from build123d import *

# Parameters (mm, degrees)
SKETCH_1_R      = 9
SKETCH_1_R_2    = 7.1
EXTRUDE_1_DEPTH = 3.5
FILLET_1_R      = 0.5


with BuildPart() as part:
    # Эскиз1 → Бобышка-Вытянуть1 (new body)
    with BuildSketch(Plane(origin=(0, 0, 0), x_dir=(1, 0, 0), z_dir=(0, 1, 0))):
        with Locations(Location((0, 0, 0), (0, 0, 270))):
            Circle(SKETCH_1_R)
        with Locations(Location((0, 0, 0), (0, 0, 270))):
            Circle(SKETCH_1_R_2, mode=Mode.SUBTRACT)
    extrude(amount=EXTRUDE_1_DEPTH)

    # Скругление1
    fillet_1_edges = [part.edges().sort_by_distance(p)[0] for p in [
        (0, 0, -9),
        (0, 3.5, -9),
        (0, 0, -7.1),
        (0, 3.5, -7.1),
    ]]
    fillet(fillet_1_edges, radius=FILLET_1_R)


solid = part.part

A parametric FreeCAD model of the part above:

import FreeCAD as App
import Part
import Sketcher

V = App.Vector
Q = App.Units.Quantity


def edges_at(feature, points):
    """Names of the edges that pass closest to the given points."""
    edges = feature.Shape.Edges
    near = lambda p: min(range(len(edges)), key=lambda i: edges[i].distToShape(Part.Vertex(*p))[0])
    return sorted({f"Edge{near(p) + 1}" for p in points})

doc = App.newDocument("Part")
body = doc.addObject("PartDesign::Body", "Body")

sketch1 = doc.addObject("Sketcher::SketchObject", "Sketch")
body.addObject(sketch1)
sketch1.AttachmentSupport = (doc.XZ_Plane, [""])
sketch1.MapMode = "FlatFace"
sketch1.addGeometry(Part.Circle(V(0, 0, 0), V(0, 0, 1), 9), False)
sketch1.addGeometry(Part.Circle(V(0, 0, 0), V(0, 0, 1), 7), False)
sketch1.addConstraint(Sketcher.Constraint("Coincident", 0, 3, -1, 1))
sketch1.addConstraint(Sketcher.Constraint("Coincident", 1, 3, -1, 1))
sketch1.addConstraint(Sketcher.Constraint("Diameter", 0, Q("18 mm")))
sketch1.addConstraint(Sketcher.Constraint("Diameter", 1, Q("14.2 mm")))
pad1 = doc.addObject("PartDesign::Pad", "Pad")
body.addObject(pad1)
pad1.Profile = sketch1
pad1.Length = 3.5
pad1.Reversed = True
doc.recompute()

fillet = doc.addObject("PartDesign::Fillet", "Fillet")
body.addObject(fillet)
fillet.Base = (pad1, edges_at(pad1, [
    (0, 0, -9),
    (0, 3.5, -9),
    (0, 0, -7.1),
    (0, 3.5, -7.1),
]))
fillet.Radius = 0.5

doc.recompute()
